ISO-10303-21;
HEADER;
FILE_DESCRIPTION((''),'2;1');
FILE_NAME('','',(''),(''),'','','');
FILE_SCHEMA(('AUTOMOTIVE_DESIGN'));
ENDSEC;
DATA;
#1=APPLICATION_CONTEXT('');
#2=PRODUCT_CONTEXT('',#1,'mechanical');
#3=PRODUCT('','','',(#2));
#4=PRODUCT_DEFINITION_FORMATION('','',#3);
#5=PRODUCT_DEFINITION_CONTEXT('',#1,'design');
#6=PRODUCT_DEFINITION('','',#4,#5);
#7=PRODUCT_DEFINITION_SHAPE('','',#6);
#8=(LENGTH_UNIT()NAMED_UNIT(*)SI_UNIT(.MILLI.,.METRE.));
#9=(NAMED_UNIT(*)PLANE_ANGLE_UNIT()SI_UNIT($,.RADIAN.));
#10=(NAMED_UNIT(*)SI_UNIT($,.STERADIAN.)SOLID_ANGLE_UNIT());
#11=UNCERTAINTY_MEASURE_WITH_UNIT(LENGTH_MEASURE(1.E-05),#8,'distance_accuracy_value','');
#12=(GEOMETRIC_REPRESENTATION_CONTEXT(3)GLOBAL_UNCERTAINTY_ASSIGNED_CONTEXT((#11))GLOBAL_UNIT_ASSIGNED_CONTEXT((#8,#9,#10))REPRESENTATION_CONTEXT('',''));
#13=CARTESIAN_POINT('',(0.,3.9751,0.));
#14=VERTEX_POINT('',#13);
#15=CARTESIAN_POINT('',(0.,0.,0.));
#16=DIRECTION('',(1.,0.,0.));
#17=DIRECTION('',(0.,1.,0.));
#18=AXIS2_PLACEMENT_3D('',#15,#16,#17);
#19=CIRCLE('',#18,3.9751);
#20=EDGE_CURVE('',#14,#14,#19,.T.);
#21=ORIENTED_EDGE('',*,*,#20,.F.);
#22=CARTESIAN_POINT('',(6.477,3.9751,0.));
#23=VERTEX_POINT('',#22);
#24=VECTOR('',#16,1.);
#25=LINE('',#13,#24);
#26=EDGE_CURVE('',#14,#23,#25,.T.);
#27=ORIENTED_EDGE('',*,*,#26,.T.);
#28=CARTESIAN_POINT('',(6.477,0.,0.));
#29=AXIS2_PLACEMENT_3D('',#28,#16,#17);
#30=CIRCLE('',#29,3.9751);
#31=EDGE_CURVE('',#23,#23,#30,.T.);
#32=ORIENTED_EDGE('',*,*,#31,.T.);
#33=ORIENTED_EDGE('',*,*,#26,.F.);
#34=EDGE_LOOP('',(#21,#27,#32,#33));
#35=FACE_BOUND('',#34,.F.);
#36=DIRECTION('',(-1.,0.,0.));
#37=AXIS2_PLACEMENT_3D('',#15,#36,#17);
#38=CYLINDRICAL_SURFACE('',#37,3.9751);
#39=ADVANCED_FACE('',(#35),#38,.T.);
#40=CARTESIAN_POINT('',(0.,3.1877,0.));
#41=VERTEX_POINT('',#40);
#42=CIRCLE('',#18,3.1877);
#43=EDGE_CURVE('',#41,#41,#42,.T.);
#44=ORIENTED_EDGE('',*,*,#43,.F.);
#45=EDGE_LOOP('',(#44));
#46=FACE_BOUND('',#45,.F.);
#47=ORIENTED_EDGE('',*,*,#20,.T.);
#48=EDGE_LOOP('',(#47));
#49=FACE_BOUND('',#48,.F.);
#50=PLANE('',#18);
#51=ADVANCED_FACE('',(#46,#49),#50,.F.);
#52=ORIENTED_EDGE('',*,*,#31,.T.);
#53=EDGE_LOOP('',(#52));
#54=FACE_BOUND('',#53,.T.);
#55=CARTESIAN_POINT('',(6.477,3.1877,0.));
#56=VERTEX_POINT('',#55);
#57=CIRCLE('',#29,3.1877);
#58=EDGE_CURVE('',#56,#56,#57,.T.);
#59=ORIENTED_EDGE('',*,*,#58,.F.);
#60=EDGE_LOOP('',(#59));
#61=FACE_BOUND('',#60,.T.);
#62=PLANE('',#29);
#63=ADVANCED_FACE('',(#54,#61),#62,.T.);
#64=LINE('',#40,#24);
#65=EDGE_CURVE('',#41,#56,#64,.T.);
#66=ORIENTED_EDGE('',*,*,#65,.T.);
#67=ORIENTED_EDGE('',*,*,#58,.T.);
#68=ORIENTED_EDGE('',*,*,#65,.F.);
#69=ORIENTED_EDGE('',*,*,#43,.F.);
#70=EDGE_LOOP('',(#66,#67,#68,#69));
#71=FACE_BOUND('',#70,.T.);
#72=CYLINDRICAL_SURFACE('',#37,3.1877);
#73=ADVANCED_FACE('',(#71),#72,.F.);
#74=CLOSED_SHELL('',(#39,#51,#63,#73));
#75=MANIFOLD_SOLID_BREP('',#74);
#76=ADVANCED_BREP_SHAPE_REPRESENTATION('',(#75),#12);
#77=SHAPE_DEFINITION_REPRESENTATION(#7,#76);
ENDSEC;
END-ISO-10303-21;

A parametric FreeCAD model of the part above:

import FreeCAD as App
import Part
import Sketcher
Q = App.Units.Quantity

doc = App.newDocument("Part")
body = doc.addObject("PartDesign::Body", "Body")

# Sketch on YZ plane
sketch1 = doc.addObject("Sketcher::SketchObject", "Sketch")
body.addObject(sketch1)
sketch1.AttachmentSupport = (doc.YZ_Plane, [""])
sketch1.MapMode = "FlatFace"
sketch1.addGeometry([
    Part.Circle(App.Vector(0, 0, 0), App.Vector(0, 0, 1), 4),
    Part.Circle(App.Vector(0, 0, 0), App.Vector(0, 0, 1), 3.2),
], False)
sketch1.addConstraint([
    Sketcher.Constraint("Coincident", 0, 3, -1, 1),
    Sketcher.Constraint("Coincident", 1, 3, -1, 1),
    Sketcher.Constraint("Diameter", 0, Q("0.313 in")),
    Sketcher.Constraint("Diameter", 1, Q("0.251 in")),
])
pad1 = doc.addObject("PartDesign::Pad", "Pad")
body.addObject(pad1)
pad1.Profile = sketch1
pad1.Length = Q("0.255 in")

doc.recompute()
